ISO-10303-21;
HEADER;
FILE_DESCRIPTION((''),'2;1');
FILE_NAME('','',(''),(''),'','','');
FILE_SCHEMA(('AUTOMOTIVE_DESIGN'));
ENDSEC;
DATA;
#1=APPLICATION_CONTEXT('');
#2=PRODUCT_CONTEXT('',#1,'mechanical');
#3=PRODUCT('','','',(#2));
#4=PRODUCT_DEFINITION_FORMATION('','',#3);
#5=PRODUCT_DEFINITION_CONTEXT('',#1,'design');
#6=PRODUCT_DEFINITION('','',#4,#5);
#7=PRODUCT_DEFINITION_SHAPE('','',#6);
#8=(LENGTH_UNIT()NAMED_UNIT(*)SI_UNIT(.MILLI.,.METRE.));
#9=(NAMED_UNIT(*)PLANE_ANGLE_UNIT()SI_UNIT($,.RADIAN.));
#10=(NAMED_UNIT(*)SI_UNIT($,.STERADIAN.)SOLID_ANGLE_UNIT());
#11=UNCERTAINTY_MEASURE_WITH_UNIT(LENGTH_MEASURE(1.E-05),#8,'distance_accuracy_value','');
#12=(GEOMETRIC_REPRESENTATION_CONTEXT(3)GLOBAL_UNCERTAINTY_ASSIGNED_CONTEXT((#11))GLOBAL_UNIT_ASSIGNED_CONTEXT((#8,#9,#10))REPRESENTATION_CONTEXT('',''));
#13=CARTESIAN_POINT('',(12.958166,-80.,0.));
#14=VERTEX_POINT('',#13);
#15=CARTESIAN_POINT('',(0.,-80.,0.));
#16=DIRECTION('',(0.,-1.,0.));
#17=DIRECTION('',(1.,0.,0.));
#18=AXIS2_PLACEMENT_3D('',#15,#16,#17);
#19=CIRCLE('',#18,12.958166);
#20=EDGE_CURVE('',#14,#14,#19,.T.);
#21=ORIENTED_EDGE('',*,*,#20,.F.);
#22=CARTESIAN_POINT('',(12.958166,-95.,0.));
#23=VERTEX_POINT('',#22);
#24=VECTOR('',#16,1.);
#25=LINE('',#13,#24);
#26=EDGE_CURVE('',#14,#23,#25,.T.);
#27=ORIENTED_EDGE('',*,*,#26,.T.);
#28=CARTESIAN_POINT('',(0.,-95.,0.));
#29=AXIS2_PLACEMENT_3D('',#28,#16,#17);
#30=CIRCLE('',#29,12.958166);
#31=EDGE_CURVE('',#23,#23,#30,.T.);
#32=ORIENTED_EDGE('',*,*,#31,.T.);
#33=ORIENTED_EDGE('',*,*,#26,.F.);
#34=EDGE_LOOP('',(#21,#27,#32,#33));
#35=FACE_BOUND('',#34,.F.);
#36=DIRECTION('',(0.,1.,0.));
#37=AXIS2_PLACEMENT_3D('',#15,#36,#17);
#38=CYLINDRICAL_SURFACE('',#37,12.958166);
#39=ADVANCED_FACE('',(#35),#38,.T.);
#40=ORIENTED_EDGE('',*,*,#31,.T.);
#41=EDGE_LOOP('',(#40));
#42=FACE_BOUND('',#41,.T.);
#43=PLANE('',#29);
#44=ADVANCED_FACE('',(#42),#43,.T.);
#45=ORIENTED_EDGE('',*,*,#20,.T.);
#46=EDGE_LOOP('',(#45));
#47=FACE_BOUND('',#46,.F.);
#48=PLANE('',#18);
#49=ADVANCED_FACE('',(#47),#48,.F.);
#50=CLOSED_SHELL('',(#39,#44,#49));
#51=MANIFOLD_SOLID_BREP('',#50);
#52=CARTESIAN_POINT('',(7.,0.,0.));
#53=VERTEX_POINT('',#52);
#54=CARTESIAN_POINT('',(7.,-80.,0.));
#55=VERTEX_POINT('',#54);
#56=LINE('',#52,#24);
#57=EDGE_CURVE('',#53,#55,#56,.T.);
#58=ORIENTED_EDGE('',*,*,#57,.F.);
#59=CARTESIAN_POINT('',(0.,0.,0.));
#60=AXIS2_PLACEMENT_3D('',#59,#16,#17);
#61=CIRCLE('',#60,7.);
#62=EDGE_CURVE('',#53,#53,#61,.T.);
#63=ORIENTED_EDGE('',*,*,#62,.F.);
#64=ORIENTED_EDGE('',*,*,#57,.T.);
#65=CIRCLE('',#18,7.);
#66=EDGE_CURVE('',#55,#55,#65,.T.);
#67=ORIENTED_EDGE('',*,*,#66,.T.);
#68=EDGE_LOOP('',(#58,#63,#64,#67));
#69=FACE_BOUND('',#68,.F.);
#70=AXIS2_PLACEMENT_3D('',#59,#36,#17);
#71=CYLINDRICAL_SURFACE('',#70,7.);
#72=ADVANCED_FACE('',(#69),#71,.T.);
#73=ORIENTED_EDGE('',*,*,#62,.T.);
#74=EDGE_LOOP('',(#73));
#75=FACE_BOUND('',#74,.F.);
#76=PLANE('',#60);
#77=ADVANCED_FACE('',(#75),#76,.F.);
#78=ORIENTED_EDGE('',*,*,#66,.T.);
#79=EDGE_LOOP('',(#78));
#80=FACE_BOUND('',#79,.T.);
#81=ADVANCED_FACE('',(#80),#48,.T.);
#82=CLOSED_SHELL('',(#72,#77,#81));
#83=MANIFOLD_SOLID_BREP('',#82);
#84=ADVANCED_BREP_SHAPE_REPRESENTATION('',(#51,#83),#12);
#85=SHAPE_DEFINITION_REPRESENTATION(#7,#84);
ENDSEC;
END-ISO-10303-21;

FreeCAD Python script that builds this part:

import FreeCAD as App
import Part
import Sketcher

V = App.Vector

doc = App.newDocument("Part")
body = doc.addObject("PartDesign::Body", "Body")

sketch1 = body.newObject("Sketcher::SketchObject", "Sketch")
sketch1.AttachmentSupport = (doc.getObject("XZ_Plane"), [""])
sketch1.MapMode = "FlatFace"
sketch1.addGeometry(Part.Circle(V(0, 0, 0), V(0, 0, 1), 7), False)
sketch1.addConstraint(Sketcher.Constraint("Coincident", 0, 3, -1, 1))
sketch1.addConstraint(Sketcher.Constraint("Diameter", 0, 14.0))
pad1 = body.newObject("PartDesign::Pad", "Pad")
pad1.Profile = sketch1
pad1.Length = 80
body2 = doc.addObject("PartDesign::Body", "Body001")

sketch2 = body2.newObject("Sketcher::SketchObject", "Sketch001")
sketch2.AttachmentSupport = (doc.getObject("XZ_Plane001"), [""])
sketch2.MapMode = "FlatFace"
sketch2.AttachmentOffset = App.Placement(V(0, 0, 80), App.Rotation())
sketch2.addGeometry(Part.Circle(V(0, 0, 0), V(0, 0, 1), 13), False)
sketch2.addConstraint(Sketcher.Constraint("Coincident", 0, 3, -1, 1))
sketch2.addConstraint(Sketcher.Constraint("Diameter", 0, 25.916332))
pad2 = body2.newObject("PartDesign::Pad", "Pad001")
pad2.Profile = sketch2
pad2.Length = 15

doc.recompute()
